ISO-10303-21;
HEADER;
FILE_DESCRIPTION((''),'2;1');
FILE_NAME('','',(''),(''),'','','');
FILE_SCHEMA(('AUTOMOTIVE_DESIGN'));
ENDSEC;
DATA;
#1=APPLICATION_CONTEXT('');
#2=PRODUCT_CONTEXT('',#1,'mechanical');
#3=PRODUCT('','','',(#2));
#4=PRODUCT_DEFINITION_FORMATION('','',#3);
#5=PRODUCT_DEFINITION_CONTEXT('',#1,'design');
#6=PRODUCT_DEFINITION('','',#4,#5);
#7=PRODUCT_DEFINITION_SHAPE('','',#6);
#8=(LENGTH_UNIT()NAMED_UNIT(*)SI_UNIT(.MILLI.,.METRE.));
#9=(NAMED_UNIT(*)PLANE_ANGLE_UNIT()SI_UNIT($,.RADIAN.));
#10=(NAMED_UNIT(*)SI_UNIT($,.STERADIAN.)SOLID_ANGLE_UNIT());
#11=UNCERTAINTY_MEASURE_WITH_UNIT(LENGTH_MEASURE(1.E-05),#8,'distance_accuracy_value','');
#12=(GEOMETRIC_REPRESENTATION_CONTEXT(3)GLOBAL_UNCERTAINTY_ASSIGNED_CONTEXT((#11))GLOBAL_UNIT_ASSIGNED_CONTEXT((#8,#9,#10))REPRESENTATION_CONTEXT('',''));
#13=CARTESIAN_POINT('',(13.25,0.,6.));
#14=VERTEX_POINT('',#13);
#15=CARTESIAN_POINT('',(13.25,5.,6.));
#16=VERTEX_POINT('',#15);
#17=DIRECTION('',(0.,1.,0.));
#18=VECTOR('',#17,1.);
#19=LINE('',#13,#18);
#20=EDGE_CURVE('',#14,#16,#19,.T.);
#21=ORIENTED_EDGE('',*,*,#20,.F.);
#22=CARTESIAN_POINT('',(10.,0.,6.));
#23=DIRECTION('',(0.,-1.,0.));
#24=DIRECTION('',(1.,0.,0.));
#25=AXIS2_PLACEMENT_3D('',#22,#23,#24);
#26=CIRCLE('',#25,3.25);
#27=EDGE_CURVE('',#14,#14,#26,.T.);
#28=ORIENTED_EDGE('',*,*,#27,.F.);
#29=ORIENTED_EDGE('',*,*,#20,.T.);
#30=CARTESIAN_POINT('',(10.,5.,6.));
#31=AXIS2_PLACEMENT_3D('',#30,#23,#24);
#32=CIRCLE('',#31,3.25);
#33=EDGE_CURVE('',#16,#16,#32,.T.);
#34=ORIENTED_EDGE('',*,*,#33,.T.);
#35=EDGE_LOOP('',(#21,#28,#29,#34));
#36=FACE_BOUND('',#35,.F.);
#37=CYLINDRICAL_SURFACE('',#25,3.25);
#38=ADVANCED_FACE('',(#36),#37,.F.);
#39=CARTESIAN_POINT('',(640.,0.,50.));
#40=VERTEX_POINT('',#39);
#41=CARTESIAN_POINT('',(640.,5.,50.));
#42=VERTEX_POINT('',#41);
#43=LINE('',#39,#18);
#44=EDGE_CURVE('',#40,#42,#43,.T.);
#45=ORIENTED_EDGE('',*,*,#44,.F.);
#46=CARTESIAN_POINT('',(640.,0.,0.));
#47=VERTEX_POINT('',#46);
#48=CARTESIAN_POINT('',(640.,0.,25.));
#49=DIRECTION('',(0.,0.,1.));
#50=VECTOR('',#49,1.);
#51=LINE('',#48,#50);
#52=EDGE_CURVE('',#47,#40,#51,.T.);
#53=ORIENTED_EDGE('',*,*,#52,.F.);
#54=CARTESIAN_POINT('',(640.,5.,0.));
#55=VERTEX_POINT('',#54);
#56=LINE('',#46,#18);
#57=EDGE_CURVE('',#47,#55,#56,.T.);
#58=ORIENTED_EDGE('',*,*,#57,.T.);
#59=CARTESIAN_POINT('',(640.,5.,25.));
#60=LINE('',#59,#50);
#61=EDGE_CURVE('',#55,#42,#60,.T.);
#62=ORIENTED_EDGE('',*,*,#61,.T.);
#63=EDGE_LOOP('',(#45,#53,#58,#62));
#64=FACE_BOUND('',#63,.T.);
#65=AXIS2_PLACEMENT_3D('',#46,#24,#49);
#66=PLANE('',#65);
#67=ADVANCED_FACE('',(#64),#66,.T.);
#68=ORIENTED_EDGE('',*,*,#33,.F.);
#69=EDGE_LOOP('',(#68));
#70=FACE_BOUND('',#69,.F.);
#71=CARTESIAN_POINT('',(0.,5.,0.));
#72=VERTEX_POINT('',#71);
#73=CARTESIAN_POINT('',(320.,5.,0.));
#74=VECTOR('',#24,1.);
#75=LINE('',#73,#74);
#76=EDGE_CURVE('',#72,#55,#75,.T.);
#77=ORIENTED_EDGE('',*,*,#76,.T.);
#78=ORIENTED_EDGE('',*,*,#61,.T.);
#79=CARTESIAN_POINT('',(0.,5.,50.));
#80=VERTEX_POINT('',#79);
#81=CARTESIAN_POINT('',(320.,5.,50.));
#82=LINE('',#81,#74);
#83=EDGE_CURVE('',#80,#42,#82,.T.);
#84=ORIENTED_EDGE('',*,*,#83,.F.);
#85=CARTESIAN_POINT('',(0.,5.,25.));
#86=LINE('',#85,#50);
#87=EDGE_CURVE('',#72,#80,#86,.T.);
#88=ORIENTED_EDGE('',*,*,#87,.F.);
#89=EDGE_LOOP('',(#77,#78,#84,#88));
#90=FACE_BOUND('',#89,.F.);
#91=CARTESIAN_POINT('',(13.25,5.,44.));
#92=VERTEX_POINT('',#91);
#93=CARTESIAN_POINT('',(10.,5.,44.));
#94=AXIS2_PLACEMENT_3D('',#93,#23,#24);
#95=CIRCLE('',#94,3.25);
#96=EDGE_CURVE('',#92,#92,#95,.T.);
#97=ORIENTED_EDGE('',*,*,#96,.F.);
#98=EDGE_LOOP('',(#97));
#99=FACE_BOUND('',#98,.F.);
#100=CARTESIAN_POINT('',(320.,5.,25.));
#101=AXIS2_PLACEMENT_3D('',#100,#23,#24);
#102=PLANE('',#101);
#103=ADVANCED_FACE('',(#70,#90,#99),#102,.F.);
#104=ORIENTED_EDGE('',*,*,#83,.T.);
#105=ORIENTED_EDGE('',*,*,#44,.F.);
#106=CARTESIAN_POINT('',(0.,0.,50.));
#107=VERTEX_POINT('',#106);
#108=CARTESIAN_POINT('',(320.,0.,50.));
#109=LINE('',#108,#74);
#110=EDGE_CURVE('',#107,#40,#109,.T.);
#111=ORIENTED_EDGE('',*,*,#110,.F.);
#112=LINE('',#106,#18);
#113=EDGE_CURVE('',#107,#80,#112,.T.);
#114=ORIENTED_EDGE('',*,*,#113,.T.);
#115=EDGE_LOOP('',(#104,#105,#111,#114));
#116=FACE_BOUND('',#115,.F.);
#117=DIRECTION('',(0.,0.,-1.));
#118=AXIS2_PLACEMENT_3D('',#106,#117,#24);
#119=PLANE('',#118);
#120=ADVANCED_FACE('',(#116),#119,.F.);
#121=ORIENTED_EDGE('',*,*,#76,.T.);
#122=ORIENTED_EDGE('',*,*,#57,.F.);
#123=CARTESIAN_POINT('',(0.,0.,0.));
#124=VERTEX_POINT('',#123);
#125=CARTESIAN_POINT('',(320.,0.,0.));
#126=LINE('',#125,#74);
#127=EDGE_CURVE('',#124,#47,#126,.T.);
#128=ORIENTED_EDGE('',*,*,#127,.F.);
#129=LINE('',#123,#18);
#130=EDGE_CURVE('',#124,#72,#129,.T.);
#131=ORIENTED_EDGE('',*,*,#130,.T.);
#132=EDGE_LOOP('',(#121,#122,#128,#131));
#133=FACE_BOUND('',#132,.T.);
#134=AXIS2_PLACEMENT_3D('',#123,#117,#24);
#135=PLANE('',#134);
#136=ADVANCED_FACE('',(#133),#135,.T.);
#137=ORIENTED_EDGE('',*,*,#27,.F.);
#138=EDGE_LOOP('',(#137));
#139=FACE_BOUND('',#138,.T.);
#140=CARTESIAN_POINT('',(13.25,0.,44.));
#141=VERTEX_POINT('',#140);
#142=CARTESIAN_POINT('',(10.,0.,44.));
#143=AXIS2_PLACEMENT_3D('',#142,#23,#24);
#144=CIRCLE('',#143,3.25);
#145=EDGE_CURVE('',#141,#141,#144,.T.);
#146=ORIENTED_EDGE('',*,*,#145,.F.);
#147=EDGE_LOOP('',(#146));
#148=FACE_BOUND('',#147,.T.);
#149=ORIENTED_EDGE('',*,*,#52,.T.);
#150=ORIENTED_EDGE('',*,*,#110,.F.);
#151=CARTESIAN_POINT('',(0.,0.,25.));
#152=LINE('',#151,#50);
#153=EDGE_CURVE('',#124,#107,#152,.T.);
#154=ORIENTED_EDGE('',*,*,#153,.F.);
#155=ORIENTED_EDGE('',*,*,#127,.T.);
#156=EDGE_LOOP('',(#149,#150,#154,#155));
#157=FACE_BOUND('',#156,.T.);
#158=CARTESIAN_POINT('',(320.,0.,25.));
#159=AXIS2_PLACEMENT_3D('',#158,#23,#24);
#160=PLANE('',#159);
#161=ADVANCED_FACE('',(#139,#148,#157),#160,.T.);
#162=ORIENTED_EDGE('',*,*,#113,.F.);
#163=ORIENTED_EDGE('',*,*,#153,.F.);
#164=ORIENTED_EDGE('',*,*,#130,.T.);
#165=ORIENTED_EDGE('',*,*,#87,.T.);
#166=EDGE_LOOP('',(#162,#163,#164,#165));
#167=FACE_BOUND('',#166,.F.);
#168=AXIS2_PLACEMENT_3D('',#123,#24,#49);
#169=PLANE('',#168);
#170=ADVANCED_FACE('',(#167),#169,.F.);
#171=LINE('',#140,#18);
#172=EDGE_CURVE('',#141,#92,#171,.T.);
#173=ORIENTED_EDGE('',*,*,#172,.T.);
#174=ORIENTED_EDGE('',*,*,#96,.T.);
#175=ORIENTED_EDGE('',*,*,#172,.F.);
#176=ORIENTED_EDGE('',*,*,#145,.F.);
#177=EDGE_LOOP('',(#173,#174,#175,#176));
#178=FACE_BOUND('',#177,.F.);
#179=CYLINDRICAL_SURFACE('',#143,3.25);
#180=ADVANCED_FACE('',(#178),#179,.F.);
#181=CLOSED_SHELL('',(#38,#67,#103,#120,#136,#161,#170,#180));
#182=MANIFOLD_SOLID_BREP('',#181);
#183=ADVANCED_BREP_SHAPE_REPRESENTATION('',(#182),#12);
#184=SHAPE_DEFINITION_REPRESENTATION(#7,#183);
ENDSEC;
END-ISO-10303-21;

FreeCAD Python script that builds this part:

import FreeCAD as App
import Part
import Sketcher

V = App.Vector

doc = App.newDocument("Part")
body = doc.addObject("PartDesign::Body", "Body")

# Sketch on XZ plane
sketch1 = doc.addObject("Sketcher::SketchObject", "Sketch")
body.addObject(sketch1)
sketch1.AttachmentSupport = (doc.XZ_Plane, [""])
sketch1.MapMode = "FlatFace"
sketch1.addGeometry([
    Part.LineSegment(V(0, 50, 0), V(0, 0, 0)),  # 0
    Part.LineSegment(V(0, 0, 0), V(640, 0, 0)),  # 1
    Part.LineSegment(V(640, 0, 0), V(640, 50, 0)),  # 2
    Part.LineSegment(V(640, 50, 0), V(0, 50, 0)),  # 3
    Part.Circle(V(10, 6, 0), V(0, 0, 1), 3.25),  # 4
    Part.Circle(V(10, 44, 0), V(0, 0, 1), 3.25),  # 5
], False)
sketch1.addConstraint([
    Sketcher.Constraint("Coincident", 0, 2, 1, 1),
    Sketcher.Constraint("Coincident", 1, 2, 2, 1),
    Sketcher.Constraint("Coincident", 2, 2, 3, 1),
    Sketcher.Constraint("Coincident", 3, 2, 0, 1),
    Sketcher.Constraint("Vertical", 0),
    Sketcher.Constraint("Horizontal", 1),
    Sketcher.Constraint("Vertical", 2),
    Sketcher.Constraint("Horizontal", 3),
    Sketcher.Constraint("Coincident", 0, 2, -1, 1),
    Sketcher.Constraint("Equal", 4, 5),
    Sketcher.Constraint("Vertical", 4, 3, 5, 3),
    Sketcher.Constraint("Diameter", 4, 6.5),
    Sketcher.Constraint("DistanceX", 1, 1, 1, 2, 640.0),
    Sketcher.Constraint("DistanceY", 0, 2, 0, 1, 50.0),
    Sketcher.Constraint("DistanceX", -1, 1, 4, 3, 10.0),
    Sketcher.Constraint("DistanceY", -1, 1, 4, 3, 6.0),
    Sketcher.Constraint("DistanceY", -1, 1, 5, 3, 44.0),
])
pad1 = doc.addObject("PartDesign::Pad", "Pad")
body.addObject(pad1)
pad1.Profile = sketch1
pad1.Length = 5
pad1.Reversed = True

doc.recompute()
